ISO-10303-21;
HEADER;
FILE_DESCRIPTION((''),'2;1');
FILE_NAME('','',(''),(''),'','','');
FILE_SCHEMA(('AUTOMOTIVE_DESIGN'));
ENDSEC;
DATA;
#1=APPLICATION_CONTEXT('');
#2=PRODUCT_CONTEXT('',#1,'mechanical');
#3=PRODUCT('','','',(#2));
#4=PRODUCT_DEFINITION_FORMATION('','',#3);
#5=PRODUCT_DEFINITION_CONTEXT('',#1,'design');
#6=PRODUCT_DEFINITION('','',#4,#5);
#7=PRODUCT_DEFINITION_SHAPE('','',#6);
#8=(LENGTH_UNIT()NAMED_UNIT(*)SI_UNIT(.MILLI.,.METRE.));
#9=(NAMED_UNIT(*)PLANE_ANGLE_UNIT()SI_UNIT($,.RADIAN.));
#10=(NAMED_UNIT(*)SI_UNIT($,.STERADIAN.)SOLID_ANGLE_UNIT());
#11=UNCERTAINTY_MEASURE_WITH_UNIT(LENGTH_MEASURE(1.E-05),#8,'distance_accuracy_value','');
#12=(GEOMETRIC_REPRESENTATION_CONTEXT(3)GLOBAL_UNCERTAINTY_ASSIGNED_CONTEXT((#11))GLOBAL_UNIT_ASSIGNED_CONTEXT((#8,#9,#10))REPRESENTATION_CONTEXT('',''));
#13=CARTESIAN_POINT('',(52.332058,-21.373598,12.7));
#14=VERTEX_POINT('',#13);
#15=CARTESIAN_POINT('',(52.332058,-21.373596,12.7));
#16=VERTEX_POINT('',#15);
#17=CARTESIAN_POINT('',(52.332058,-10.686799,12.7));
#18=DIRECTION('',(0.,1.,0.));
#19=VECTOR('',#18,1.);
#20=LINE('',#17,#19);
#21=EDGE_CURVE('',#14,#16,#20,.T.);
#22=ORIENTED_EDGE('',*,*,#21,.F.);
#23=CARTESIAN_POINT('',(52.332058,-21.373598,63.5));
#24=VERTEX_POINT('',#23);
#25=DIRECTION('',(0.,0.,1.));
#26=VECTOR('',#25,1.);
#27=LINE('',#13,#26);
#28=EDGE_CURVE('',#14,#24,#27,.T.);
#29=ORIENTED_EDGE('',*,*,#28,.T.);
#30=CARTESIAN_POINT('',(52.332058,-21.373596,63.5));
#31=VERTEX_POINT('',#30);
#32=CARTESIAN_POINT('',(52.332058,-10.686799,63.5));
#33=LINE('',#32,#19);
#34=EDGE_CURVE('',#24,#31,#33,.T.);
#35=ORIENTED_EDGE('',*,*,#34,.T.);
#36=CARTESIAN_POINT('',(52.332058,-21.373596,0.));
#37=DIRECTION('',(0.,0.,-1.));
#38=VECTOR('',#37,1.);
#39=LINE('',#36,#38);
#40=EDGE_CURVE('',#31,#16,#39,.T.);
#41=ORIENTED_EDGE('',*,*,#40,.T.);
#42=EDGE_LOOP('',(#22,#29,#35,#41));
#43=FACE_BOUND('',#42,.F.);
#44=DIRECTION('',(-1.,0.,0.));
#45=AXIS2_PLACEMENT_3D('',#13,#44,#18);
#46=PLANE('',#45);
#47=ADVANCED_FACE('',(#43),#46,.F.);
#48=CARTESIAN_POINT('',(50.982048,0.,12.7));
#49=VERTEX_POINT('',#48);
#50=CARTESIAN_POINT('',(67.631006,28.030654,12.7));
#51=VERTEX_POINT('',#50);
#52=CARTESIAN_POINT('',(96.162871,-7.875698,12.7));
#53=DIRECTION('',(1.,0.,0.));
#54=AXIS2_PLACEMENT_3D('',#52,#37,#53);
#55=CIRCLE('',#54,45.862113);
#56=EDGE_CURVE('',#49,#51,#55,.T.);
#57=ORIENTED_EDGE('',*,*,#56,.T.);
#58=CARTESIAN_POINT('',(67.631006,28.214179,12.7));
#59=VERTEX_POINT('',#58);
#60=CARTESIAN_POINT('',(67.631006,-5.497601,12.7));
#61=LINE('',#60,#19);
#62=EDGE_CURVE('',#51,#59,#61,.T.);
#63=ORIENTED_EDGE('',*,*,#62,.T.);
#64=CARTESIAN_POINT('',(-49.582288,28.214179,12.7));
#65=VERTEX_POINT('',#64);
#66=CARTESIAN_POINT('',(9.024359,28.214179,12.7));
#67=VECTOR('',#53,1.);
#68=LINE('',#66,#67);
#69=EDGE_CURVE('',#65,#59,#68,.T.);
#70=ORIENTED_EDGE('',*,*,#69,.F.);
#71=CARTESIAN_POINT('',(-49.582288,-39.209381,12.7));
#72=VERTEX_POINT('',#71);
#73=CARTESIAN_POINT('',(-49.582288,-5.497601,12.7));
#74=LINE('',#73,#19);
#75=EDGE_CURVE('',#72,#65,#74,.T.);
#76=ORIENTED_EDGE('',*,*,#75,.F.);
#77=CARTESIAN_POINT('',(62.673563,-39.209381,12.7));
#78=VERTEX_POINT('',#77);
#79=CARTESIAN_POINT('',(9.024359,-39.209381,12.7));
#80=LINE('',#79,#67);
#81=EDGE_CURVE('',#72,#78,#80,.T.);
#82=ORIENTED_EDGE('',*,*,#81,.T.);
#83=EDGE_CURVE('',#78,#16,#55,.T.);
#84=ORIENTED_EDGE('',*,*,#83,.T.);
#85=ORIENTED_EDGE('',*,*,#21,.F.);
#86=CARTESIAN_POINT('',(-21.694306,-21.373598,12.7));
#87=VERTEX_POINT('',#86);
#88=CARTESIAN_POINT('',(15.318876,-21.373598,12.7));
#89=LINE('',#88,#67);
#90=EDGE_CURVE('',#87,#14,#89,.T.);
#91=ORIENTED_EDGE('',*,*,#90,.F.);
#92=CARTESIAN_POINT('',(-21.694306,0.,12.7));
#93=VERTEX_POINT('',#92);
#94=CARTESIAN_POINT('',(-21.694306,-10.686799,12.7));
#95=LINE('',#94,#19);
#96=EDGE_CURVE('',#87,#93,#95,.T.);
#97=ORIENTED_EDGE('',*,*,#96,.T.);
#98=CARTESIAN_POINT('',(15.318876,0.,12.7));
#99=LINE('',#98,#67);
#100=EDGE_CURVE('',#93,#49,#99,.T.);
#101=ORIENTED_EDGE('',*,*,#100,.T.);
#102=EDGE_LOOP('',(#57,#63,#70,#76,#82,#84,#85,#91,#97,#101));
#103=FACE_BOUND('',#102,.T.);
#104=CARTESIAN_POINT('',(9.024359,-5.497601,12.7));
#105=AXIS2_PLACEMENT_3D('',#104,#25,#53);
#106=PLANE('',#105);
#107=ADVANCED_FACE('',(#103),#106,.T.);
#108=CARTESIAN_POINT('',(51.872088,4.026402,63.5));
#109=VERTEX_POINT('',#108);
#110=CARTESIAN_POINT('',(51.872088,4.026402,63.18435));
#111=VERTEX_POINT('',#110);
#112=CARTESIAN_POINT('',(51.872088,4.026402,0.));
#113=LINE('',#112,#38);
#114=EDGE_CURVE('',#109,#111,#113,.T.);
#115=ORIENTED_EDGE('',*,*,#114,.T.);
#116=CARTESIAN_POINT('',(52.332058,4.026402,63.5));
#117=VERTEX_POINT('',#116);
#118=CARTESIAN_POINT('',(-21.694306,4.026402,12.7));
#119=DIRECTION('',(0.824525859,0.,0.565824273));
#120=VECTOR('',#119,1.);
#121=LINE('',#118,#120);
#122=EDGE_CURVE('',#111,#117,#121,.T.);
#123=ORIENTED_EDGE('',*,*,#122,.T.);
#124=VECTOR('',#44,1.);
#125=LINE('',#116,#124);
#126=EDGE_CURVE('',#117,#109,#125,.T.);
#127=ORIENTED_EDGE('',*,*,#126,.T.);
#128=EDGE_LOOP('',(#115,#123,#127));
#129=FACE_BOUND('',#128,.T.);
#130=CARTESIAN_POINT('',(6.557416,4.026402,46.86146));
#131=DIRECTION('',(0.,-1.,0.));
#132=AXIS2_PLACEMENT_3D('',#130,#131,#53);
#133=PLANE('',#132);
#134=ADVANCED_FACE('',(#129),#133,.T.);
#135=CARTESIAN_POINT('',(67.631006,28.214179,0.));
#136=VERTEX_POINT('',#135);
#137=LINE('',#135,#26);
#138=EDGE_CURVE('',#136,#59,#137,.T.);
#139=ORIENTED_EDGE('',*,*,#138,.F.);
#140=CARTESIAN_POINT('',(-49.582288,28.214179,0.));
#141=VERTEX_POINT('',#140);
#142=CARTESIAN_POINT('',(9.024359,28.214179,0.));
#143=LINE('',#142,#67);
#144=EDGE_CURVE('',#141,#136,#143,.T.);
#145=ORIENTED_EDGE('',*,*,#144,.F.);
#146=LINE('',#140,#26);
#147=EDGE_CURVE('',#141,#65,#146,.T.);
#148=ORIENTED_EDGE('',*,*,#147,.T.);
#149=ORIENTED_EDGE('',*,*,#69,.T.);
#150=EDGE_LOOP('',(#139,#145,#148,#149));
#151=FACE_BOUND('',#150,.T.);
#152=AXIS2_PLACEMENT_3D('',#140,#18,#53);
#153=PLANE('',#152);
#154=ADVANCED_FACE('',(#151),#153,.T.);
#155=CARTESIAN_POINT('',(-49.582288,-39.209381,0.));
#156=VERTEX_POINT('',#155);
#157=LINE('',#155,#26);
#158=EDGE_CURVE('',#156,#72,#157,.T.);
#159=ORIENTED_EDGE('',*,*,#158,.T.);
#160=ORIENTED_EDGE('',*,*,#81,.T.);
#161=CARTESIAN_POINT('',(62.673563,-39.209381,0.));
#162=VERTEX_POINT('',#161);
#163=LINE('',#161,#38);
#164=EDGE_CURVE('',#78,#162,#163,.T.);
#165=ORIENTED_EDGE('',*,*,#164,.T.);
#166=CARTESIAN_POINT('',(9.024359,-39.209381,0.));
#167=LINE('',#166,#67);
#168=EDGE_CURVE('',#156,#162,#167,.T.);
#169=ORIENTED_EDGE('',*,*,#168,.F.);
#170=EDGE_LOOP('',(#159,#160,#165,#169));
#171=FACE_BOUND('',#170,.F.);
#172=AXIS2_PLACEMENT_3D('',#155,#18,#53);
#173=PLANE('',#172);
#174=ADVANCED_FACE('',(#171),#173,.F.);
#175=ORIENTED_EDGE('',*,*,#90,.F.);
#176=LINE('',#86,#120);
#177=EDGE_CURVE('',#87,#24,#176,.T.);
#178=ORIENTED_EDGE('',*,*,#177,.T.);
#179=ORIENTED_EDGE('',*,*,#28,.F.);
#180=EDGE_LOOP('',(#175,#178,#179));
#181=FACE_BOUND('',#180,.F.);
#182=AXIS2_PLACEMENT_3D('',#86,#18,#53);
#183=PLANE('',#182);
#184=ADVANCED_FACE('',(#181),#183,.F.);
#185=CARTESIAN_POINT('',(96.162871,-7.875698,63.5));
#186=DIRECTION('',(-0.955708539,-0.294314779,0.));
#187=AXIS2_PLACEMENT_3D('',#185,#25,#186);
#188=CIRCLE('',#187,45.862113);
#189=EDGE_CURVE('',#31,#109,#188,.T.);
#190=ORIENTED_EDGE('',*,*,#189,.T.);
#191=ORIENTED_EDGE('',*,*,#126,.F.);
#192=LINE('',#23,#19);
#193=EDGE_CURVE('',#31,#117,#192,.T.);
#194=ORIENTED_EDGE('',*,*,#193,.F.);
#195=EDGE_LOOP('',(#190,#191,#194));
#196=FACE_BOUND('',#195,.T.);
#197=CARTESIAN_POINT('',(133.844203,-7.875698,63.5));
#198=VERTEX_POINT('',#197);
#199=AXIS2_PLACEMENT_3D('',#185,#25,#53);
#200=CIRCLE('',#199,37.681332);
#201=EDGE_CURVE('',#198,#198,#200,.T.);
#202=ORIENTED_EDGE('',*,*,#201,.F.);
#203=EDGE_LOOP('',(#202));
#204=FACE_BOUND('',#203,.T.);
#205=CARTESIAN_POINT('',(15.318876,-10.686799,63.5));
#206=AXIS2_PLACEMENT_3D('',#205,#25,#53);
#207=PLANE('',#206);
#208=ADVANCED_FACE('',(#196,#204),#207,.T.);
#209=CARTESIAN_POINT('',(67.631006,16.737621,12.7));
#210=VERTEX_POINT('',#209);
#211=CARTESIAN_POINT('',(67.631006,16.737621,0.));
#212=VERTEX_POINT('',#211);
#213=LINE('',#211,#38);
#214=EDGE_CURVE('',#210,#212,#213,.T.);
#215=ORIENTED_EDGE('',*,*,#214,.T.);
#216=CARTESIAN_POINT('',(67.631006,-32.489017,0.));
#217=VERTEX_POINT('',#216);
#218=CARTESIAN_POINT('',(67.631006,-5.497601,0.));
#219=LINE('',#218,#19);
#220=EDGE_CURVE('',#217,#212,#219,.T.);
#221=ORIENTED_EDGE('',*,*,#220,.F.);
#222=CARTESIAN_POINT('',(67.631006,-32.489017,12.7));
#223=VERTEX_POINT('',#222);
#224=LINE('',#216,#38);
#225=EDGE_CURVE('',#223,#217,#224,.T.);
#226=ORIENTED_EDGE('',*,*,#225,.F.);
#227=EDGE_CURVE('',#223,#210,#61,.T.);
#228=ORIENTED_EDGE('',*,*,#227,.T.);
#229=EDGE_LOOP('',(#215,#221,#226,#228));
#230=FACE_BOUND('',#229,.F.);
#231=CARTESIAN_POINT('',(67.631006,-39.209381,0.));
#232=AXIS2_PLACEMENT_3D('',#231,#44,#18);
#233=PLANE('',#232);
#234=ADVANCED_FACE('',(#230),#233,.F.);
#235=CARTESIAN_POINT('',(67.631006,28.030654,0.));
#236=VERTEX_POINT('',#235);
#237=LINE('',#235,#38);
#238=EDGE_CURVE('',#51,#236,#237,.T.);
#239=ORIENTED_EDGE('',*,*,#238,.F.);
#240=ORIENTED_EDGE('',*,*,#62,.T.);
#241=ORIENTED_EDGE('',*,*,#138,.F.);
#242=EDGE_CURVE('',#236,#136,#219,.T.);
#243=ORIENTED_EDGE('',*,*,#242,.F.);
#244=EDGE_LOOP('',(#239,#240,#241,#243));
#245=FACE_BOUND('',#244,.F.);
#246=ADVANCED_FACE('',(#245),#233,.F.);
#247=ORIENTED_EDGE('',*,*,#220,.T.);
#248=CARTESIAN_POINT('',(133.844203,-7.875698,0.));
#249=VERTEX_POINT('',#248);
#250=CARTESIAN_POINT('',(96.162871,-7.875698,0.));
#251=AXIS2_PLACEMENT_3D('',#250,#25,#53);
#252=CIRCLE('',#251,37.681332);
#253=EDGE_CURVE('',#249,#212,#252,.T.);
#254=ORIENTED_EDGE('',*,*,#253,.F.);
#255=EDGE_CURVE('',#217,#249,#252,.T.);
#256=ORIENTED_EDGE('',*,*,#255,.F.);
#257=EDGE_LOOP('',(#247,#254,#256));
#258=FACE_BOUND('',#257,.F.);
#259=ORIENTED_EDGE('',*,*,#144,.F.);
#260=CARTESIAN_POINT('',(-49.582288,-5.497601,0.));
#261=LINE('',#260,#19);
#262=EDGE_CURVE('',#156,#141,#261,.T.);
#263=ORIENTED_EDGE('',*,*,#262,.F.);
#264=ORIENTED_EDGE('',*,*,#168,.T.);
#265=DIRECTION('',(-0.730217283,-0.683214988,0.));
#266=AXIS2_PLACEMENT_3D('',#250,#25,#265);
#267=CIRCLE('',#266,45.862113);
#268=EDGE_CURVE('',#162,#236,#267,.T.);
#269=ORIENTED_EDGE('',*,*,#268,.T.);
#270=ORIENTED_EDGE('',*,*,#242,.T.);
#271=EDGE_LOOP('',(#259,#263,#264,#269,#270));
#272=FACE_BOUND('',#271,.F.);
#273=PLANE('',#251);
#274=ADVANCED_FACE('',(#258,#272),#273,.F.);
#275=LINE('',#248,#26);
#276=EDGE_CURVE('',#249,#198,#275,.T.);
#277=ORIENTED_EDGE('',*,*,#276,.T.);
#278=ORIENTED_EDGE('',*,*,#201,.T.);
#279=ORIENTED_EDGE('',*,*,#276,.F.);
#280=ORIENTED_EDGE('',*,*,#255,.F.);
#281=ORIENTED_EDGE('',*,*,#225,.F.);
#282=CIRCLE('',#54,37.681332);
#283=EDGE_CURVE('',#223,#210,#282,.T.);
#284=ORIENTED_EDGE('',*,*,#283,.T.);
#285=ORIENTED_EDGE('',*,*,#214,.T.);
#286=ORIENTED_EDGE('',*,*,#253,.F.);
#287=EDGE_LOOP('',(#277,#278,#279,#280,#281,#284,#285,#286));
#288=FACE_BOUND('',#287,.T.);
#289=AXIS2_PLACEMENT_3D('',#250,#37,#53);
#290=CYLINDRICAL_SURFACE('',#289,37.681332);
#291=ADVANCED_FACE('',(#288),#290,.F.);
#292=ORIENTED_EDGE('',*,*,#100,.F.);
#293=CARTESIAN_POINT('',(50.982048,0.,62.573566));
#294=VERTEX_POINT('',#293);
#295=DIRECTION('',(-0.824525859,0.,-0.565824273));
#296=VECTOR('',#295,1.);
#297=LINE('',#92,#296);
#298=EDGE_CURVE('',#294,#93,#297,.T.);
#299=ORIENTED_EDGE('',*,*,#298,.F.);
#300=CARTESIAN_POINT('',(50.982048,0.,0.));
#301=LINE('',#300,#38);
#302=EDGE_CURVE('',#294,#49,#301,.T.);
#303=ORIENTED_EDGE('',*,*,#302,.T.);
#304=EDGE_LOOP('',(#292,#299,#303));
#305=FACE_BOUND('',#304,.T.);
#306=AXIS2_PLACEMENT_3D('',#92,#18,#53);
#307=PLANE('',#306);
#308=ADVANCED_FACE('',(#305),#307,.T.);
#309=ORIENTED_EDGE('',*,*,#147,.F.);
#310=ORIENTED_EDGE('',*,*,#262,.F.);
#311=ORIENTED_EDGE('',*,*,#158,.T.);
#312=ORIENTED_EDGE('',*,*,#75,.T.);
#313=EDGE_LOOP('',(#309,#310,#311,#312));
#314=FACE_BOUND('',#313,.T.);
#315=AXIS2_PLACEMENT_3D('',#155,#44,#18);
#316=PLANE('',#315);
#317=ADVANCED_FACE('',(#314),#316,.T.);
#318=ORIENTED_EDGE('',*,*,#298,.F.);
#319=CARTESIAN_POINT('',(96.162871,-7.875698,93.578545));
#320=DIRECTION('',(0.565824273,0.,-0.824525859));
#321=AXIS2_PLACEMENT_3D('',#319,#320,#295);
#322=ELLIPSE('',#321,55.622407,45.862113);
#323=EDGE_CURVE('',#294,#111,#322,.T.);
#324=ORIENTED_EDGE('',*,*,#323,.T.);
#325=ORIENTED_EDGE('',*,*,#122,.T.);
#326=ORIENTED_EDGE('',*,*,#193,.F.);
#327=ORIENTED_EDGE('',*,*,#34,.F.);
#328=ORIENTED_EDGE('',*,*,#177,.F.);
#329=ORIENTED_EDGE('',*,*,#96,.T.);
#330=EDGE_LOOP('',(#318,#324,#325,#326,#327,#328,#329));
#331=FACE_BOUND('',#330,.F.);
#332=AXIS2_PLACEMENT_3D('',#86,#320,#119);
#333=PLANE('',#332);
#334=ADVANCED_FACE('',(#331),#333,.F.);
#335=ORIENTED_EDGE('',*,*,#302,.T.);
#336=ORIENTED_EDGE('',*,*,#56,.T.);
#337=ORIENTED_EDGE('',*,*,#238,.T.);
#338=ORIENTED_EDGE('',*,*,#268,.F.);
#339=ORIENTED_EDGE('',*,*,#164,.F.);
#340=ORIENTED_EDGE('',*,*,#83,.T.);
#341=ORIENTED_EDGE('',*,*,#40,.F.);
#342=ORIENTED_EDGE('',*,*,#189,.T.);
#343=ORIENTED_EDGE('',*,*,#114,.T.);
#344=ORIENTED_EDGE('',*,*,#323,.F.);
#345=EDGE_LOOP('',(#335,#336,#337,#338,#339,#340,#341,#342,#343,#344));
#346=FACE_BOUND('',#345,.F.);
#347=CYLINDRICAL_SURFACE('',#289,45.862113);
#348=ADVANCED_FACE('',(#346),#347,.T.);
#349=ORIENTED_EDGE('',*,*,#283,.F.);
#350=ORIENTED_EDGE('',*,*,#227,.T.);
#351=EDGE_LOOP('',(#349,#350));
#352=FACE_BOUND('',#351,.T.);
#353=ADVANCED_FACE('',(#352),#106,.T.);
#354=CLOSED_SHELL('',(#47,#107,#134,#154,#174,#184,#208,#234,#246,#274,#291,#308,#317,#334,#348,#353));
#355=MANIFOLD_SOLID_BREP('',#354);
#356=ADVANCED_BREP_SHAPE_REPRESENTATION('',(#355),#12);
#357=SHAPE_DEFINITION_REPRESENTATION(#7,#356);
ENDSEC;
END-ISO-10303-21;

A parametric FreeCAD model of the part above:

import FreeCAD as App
import Part
import Sketcher
from FreeCAD import Vector
Q = App.Units.Quantity


def add_polygon(sketch, points):
    """Adds a closed chain of lines whose ends are joined by coincident constraints."""
    first, n = sketch.GeometryCount, len(points)
    for a, b in zip(points, points[1:] + points[:1]):
        sketch.addGeometry(Part.LineSegment(App.Vector(*a, 0), App.Vector(*b, 0)), False)
    for i in range(n):
        sketch.addConstraint(Sketcher.Constraint("Coincident", first + i, 2, first + (i + 1) % n, 1))

doc = App.newDocument("Part")
body = doc.addObject("PartDesign::Body", "Body")

# Sketch on XY plane
sketch1 = body.newObject("Sketcher::SketchObject", "Sketch")
sketch1.AttachmentSupport = (doc.getObject("XY_Plane"), [""])
sketch1.MapMode = "FlatFace"
add_polygon(sketch1, [(-49.582288, 28.214179), (-49.582288, -39.209381), (67.631006, -39.209381), (67.631006, 28.214179)])  # lines 0-3
sketch1.addConstraint([
    Sketcher.Constraint("Vertical", 0),
    Sketcher.Constraint("Horizontal", 1),
    Sketcher.Constraint("Vertical", 2),
    Sketcher.Constraint("Horizontal", 3),
    Sketcher.Constraint("DistanceY", 0, 2, 0, 1, 67.42356),
    Sketcher.Constraint("DistanceX", 1, 1, 1, 2, 117.213294),
    Sketcher.Constraint("DistanceY", 0, 2, -1, 1, 39.209381),
    Sketcher.Constraint("DistanceX", 0, 2, -1, 1, 49.582288),
])
pad1 = body.newObject("PartDesign::Pad", "Pad")
pad1.Profile = sketch1
pad1.Length = Q("1 in")

# Sketch on XY plane
sketch2 = body.newObject("Sketcher::SketchObject", "Sketch001")
sketch2.AttachmentSupport = (doc.getObject("XY_Plane"), [""])
sketch2.MapMode = "FlatFace"
sketch2.AttachmentOffset = App.Placement(Vector(0, 0, 1 * 25.4), App.Rotation())
add_polygon(sketch2, [(-49.582288, 28.214179), (-49.582288, -39.209381), (67.631006, -39.209381), (67.631006, 28.214179)])  # lines 0-3
sketch2.addConstraint([
    Sketcher.Constraint("Vertical", 0),
    Sketcher.Constraint("Horizontal", 1),
    Sketcher.Constraint("Vertical", 2),
    Sketcher.Constraint("Horizontal", 3),
    Sketcher.Constraint("DistanceY", 0, 2, 0, 1, 67.42356),
    Sketcher.Constraint("DistanceX", 1, 1, 1, 2, 117.213294),
    Sketcher.Constraint("DistanceY", 0, 2, -1, 1, 39.209381),
    Sketcher.Constraint("DistanceX", 0, 2, -1, 1, 49.582288),
])
pocket1 = body.newObject("PartDesign::Pocket", "Pocket")
pocket1.Profile = sketch2
pocket1.Length = Q("0.5 in")

# Sketch on XY plane
sketch3 = body.newObject("Sketcher::SketchObject", "Sketch002")
sketch3.AttachmentSupport = (doc.getObject("XY_Plane"), [""])
sketch3.MapMode = "FlatFace"
sketch3.addGeometry([
    Part.Circle(Vector(96.162871, -7.875698, 0), Vector(0, 0, 1), 45.862113),
    Part.Circle(Vector(96.162871, -7.875698, 0), Vector(0, 0, 1), 37.681332),
], False)
sketch3.addConstraint([
    Sketcher.Constraint("Coincident", 1, 3, 0, 3),
    Sketcher.Constraint("Diameter", 0, 91.724226),
    Sketcher.Constraint("Diameter", 1, 75.362664),
    Sketcher.Constraint("DistanceX", -1, 1, 0, 3, 96.162871),
    Sketcher.Constraint("DistanceY", 0, 3, -1, 1, 7.875698),
])
pad2 = body.newObject("PartDesign::Pad", "Pad001")
pad2.Profile = sketch3
pad2.Length = Q("2.5 in")

# Sketch on XY plane
sketch4 = body.newObject("Sketcher::SketchObject", "Sketch003")
sketch4.AttachmentSupport = (doc.getObject("XY_Plane"), [""])
sketch4.MapMode = "FlatFace"
sketch4.AttachmentOffset = App.Placement(Vector(0, 0, 0.5 * 25.4), App.Rotation())
add_polygon(sketch4, [(-21.694306, 0), (-21.694306, -21.373598), (52.332058, -21.373598), (52.332058, 0)])  # lines 0-3
sketch4.addConstraint([
    Sketcher.Constraint("Vertical", 0),
    Sketcher.Constraint("Horizontal", 1),
    Sketcher.Constraint("Vertical", 2),
    Sketcher.Constraint("Horizontal", 3),
    Sketcher.Constraint("PointOnObject", 2, 2, -1),
    Sketcher.Constraint("DistanceY", 0, 2, 0, 1, 21.373598),
    Sketcher.Constraint("DistanceX", 1, 1, 1, 2, 74.026364),
    Sketcher.Constraint("DistanceX", -1, 1, 1, 2, 52.332058),
])
pad3 = body.newObject("PartDesign::Pad", "Pad002")
pad3.Profile = sketch4
pad3.Length = Q("2 in")

# Sketch on XZ plane
sketch5 = body.newObject("Sketcher::SketchObject", "Sketch004")
sketch5.AttachmentSupport = (doc.getObject("XZ_Plane"), [""])
sketch5.MapMode = "FlatFace"
sketch5.AttachmentOffset = App.Placement(Vector(0, 0, 21.373598), App.Rotation())
add_polygon(sketch5, [(-21.694306, 63.5), (-21.694306, 12.7), (52.332058, 63.5)])  # lines 0-2
sketch5.addConstraint([
    Sketcher.Constraint("Vertical", 0),
    Sketcher.Constraint("Horizontal", 2),
    Sketcher.Constraint("DistanceY", 0, 2, 0, 1, Q("2 in")),
    Sketcher.Constraint("DistanceY", -1, 1, 0, 2, Q("0.5 in")),
    Sketcher.Constraint("DistanceX", 2, 2, 2, 1, 74.026364),
    Sketcher.Constraint("DistanceX", -1, 1, 1, 2, 52.332058),
])
pocket2 = body.newObject("PartDesign::Pocket", "Pocket001")
pocket2.Profile = sketch5
pocket2.Length = Q("1 in")

doc.recompute()
